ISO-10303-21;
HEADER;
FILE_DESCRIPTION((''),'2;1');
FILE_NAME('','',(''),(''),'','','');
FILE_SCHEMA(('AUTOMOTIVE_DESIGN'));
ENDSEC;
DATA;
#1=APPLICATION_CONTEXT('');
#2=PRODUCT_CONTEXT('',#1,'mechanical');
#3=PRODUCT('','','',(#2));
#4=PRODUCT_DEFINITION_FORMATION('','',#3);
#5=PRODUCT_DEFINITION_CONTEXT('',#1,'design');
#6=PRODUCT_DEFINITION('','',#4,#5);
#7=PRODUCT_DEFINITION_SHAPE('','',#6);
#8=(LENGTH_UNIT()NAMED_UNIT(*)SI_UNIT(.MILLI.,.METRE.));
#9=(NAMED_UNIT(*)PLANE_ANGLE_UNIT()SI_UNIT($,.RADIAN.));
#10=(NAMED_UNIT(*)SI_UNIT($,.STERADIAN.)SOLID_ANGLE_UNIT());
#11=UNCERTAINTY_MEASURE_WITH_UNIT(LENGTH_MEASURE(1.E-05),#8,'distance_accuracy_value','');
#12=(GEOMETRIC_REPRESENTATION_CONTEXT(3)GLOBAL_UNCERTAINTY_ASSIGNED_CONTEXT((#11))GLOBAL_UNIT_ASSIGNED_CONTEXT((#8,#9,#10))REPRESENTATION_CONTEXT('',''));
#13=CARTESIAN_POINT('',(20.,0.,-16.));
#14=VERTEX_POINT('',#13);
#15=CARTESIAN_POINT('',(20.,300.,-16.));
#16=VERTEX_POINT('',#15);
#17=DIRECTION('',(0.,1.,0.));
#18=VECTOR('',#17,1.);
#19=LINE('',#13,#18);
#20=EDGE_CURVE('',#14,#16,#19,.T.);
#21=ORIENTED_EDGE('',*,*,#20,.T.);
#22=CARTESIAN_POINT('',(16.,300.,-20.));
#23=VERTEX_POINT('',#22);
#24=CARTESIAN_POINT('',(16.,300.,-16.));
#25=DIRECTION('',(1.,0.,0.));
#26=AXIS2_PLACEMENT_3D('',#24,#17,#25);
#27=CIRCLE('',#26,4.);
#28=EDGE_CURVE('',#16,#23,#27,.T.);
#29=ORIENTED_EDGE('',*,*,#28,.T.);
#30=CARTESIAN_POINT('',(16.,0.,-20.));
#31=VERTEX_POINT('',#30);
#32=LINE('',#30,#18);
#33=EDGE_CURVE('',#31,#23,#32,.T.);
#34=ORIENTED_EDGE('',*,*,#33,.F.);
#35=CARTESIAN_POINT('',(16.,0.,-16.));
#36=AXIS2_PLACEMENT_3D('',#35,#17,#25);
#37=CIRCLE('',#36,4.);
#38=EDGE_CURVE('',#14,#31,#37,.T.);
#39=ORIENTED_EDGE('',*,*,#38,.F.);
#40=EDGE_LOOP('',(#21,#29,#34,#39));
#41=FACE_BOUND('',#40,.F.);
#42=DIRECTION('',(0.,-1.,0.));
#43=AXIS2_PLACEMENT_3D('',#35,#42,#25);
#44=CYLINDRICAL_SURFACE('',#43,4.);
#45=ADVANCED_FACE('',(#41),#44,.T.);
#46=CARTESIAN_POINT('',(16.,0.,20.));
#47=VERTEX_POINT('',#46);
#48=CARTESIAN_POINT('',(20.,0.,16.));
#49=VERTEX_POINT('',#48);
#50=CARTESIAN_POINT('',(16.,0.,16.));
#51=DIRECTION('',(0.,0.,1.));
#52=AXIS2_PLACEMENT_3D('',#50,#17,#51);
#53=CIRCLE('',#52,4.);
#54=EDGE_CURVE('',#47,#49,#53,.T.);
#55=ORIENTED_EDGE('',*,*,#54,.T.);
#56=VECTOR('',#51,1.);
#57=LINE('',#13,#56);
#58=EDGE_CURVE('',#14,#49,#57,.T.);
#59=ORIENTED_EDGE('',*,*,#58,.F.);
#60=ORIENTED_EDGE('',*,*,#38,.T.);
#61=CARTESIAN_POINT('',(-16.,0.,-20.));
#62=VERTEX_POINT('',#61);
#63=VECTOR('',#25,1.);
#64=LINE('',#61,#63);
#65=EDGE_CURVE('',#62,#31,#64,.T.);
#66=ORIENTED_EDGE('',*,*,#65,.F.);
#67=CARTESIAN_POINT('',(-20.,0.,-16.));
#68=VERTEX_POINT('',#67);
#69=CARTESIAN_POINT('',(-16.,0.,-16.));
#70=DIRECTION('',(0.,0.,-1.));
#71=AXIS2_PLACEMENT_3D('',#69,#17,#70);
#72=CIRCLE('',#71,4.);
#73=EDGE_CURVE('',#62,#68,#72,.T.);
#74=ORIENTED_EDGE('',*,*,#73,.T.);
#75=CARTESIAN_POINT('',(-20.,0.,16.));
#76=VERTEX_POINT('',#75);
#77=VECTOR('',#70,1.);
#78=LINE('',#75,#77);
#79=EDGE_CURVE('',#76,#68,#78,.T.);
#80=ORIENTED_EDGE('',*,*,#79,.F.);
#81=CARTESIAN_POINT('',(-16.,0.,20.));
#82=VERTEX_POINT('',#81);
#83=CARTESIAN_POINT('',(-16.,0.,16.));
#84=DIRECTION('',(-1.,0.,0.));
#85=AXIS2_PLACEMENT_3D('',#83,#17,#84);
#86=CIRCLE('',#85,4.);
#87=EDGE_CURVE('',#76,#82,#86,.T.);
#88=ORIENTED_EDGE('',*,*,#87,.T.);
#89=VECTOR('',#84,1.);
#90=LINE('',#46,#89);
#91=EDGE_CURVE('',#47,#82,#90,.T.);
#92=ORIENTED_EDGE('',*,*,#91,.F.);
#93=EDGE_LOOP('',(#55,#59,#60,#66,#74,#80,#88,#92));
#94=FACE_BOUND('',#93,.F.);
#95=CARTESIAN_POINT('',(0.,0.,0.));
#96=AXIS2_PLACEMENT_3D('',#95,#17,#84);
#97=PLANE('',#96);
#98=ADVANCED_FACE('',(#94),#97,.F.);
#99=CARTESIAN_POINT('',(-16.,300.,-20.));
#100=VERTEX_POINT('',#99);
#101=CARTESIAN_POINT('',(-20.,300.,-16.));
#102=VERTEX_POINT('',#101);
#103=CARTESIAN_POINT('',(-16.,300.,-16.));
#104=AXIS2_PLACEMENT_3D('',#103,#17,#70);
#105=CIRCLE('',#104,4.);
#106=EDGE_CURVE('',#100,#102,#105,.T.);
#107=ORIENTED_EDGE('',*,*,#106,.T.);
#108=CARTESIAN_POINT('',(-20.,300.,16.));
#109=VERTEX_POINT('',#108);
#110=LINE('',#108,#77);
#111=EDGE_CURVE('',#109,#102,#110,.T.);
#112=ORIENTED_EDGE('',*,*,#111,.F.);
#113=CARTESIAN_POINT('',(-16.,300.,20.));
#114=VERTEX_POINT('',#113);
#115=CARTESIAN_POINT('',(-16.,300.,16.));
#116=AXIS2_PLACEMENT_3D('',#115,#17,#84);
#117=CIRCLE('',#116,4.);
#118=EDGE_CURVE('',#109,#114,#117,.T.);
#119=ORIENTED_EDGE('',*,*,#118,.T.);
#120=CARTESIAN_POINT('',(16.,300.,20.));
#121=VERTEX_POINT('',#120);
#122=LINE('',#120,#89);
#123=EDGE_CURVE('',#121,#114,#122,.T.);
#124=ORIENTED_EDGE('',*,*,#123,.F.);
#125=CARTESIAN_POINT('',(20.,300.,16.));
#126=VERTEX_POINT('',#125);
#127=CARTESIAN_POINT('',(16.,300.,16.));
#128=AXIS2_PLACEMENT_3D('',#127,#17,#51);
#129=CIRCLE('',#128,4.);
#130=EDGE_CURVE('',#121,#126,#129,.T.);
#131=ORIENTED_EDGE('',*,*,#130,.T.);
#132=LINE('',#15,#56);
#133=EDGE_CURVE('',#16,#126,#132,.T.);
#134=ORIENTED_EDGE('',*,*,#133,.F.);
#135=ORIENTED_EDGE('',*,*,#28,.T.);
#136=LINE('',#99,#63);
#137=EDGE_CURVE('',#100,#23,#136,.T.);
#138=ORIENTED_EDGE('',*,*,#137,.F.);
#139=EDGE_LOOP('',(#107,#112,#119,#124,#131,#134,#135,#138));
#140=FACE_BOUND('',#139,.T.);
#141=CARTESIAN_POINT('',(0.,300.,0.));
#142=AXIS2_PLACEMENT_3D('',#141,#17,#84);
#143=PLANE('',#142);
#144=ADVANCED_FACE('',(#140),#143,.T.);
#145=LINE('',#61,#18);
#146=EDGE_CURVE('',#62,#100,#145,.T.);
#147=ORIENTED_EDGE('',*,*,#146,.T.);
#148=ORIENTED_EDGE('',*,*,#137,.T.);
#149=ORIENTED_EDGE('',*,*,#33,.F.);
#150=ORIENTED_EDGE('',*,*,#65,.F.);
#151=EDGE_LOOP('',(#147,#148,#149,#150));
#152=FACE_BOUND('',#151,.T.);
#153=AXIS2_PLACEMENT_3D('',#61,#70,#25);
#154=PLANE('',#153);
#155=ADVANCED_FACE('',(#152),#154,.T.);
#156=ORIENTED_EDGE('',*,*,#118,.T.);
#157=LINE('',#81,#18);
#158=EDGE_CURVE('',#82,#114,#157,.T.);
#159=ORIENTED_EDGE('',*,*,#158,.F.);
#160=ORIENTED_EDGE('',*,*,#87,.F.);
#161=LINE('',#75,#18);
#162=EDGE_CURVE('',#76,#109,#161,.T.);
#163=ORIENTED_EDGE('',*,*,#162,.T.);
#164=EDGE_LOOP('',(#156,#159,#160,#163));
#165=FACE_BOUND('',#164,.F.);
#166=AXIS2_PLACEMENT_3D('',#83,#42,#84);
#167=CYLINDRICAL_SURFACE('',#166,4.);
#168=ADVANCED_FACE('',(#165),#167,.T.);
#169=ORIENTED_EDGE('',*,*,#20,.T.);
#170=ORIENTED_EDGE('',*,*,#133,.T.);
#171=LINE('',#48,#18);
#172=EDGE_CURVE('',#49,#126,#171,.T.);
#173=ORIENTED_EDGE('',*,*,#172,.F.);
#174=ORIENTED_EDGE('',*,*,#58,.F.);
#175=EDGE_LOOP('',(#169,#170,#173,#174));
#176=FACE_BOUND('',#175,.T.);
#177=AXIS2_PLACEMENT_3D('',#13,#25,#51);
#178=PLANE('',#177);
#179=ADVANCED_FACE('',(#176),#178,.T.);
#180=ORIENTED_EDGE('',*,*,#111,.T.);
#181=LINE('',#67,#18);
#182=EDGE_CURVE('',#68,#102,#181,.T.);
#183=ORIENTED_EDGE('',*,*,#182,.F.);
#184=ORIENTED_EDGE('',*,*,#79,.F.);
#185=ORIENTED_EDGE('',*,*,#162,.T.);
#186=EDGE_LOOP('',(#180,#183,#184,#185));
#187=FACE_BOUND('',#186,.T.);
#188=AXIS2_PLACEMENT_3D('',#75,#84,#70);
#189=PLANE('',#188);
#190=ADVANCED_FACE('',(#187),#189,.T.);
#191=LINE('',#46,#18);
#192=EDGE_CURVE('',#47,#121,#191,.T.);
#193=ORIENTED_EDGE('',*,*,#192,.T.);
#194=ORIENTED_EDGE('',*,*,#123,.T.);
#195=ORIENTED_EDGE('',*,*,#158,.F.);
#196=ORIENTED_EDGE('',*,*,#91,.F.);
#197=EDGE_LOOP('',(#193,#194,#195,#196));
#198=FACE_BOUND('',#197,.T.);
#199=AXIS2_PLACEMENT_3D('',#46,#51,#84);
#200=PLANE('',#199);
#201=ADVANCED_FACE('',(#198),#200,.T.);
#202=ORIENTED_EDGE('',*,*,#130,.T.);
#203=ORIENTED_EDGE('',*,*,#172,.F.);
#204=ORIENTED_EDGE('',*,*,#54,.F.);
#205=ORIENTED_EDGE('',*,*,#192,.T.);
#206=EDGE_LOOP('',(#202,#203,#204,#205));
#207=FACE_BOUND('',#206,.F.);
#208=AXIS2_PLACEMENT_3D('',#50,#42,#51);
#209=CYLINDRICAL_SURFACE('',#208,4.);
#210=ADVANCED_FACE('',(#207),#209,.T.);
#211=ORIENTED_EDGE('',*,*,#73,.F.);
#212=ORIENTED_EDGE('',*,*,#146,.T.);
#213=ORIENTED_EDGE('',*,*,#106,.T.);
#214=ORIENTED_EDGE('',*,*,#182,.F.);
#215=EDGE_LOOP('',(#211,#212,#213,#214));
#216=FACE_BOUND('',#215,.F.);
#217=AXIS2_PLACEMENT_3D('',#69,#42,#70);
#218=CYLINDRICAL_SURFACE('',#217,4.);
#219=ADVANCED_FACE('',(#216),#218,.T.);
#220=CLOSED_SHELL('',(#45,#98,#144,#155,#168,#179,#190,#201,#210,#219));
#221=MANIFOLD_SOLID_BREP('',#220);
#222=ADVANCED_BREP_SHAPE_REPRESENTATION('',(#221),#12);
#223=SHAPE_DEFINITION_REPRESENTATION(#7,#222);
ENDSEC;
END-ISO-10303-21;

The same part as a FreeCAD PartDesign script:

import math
import FreeCAD as App
import Part
import Sketcher
from FreeCAD import Vector

doc = App.newDocument("Part")
body = doc.addObject("PartDesign::Body", "Body")

# Sketch on XZ plane
sketch1 = body.newObject("Sketcher::SketchObject", "Sketch")
sketch1.AttachmentSupport = (doc.getObject("XZ_Plane"), [""])
sketch1.MapMode = "FlatFace"
sketch1.addGeometry(Part.LineSegment(Vector(16, -20, 0), Vector(-16, -20, 0)), False)
sketch1.addGeometry(Part.ArcOfCircle(Part.Circle(Vector(-16, -16, 0), Vector(0, 0, 1), 4), math.radians(180), math.radians(270)), False)
sketch1.addGeometry(Part.LineSegment(Vector(-20, -16, 0), Vector(-20, 16, 0)), False)
sketch1.addGeometry(Part.ArcOfCircle(Part.Circle(Vector(-16, 16, 0), Vector(0, 0, 1), 4), math.radians(90), math.radians(180)), False)
sketch1.addGeometry(Part.LineSegment(Vector(-16, 20, 0), Vector(16, 20, 0)), False)
sketch1.addGeometry(Part.ArcOfCircle(Part.Circle(Vector(16, 16, 0), Vector(0, 0, 1), 4), math.radians(0), math.radians(90)), False)
sketch1.addGeometry(Part.LineSegment(Vector(20, 16, 0), Vector(20, -16, 0)), False)
sketch1.addGeometry(Part.ArcOfCircle(Part.Circle(Vector(16, -16, 0), Vector(0, 0, 1), 4), math.radians(-90), math.radians(0)), False)
sketch1.addConstraint(Sketcher.Constraint("Tangent", 0, 2, 1, 2))
sketch1.addConstraint(Sketcher.Constraint("Tangent", 1, 1, 2, 1))
sketch1.addConstraint(Sketcher.Constraint("Tangent", 2, 2, 3, 2))
sketch1.addConstraint(Sketcher.Constraint("Tangent", 3, 1, 4, 1))
sketch1.addConstraint(Sketcher.Constraint("Tangent", 4, 2, 5, 2))
sketch1.addConstraint(Sketcher.Constraint("Tangent", 5, 1, 6, 1))
sketch1.addConstraint(Sketcher.Constraint("Tangent", 6, 2, 7, 2))
sketch1.addConstraint(Sketcher.Constraint("Tangent", 7, 1, 0, 1))
sketch1.addConstraint(Sketcher.Constraint("Horizontal", 0))
sketch1.addConstraint(Sketcher.Constraint("Vertical", 2))
sketch1.addConstraint(Sketcher.Constraint("Horizontal", 4))
sketch1.addConstraint(Sketcher.Constraint("Vertical", 6))
sketch1.addConstraint(Sketcher.Constraint("Equal", 1, 3))
sketch1.addConstraint(Sketcher.Constraint("Equal", 3, 5))
sketch1.addConstraint(Sketcher.Constraint("Equal", 5, 7))
sketch1.addConstraint(Sketcher.Constraint("Symmetric", 1, 3, 5, 3, -1, 1))
sketch1.addConstraint(Sketcher.Constraint("Equal", 4, 2))
sketch1.addConstraint(Sketcher.Constraint("Radius", 1, 4.0))
sketch1.addConstraint(Sketcher.Constraint("DistanceX", 0, 2, 0, 1, 32.0))
pad1 = body.newObject("PartDesign::Pad", "Pad")
pad1.Profile = sketch1
pad1.Length = 300
pad1.Reversed = True

doc.recompute()
